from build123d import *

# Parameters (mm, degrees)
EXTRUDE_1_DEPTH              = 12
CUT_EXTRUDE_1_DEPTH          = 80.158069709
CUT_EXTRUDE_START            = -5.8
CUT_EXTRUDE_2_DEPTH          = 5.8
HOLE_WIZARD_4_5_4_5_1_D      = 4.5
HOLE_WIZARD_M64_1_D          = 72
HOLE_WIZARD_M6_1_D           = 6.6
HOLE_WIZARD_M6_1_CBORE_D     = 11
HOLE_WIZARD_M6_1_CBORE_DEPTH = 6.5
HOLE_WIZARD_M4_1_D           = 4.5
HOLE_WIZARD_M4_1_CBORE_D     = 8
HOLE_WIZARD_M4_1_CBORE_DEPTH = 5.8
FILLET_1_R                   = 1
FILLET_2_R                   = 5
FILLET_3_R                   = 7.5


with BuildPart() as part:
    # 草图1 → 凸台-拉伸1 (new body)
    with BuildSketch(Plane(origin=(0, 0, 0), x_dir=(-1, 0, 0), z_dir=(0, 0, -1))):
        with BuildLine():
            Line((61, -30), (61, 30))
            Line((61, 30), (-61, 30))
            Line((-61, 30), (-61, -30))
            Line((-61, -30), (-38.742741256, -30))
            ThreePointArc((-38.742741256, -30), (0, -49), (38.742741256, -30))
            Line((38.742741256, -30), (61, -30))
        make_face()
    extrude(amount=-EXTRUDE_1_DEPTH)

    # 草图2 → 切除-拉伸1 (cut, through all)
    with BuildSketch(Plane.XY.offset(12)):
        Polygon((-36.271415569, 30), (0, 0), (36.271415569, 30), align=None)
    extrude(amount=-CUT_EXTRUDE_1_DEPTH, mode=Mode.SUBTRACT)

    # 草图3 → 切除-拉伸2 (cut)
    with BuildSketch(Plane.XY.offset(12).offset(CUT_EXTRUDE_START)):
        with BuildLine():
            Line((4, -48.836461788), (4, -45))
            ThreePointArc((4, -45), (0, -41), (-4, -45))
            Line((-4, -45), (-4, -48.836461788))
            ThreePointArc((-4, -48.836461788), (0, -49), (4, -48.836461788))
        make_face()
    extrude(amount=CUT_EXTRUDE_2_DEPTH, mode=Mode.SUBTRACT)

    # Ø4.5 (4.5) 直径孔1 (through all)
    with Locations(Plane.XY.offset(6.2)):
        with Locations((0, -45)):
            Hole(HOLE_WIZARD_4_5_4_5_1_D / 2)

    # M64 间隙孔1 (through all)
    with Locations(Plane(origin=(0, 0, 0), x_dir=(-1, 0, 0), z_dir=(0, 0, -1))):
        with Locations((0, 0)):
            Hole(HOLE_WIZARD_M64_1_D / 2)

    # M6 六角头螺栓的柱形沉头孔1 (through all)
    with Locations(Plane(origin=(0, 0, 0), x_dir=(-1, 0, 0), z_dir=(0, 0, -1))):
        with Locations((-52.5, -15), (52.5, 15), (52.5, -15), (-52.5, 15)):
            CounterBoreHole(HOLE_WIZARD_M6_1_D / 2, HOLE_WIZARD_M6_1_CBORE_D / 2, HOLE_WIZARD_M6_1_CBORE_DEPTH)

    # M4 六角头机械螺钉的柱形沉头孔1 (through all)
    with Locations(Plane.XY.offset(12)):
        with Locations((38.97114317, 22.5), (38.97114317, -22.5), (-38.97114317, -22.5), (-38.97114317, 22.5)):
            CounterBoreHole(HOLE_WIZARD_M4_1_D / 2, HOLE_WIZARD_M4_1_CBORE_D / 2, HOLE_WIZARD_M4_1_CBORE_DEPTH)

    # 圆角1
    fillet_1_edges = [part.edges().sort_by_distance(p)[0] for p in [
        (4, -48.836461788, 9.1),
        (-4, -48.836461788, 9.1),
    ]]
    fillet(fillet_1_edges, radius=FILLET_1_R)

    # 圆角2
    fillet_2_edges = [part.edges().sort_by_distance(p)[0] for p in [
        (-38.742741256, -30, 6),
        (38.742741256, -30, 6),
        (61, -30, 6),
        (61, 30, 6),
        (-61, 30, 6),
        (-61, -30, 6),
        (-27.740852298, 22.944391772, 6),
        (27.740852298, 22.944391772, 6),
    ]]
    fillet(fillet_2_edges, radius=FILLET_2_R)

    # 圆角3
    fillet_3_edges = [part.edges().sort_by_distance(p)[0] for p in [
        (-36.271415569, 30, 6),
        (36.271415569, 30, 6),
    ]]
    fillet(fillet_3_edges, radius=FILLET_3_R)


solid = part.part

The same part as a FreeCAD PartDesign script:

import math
import FreeCAD as App
import Part
import Sketcher
from FreeCAD import Vector


def edges_at(feature, points):
    """Names of the edges that pass closest to the given points."""
    edges = feature.Shape.Edges
    near = lambda p: min(range(len(edges)), key=lambda i: edges[i].distToShape(Part.Vertex(*p))[0])
    return sorted({f"Edge{near(p) + 1}" for p in points})

doc = App.newDocument("Part")
params = doc.addObject("Spreadsheet::Sheet", "Params")
for row, (alias, value) in enumerate([
    ("sketch1_radius", "49 mm"),
    ("sketch1_width", "122 mm"),
    ("sketch1_height", "60 mm"),
    ("pad1_length", "12 mm"),
    ("sketch3_radius", "4 mm"),
    ("sketch3_radius2", "49 mm"),
    ("pocket2_length", "5.8 mm"),
    ("sketch4_diameter", "4.5 mm"),
    ("hole_diameter", "4.5 mm"),
    ("sketch5_diameter", "72 mm"),
    ("hole2_diameter", "72 mm"),
    ("sketch6_diameter", "6.6 mm"),
    ("hole3_diameter", "6.6 mm"),
    ("hole3_cbore_diameter", "11 mm"),
    ("hole3_cbore_depth", "6.5 mm"),
    ("sketch7_diameter", "4.5 mm"),
    ("hole4_diameter", "4.5 mm"),
    ("hole4_cbore_diameter", "8 mm"),
    ("hole4_cbore_depth", "5.8 mm"),
    ("fillet_radius", "1 mm"),
    ("fillet2_radius", "5 mm"),
    ("fillet3_radius", "7.5 mm"),
], start=1):
    params.set(f"A{row}", alias)
    params.set(f"B{row}", "=" + value)
    params.setAlias(f"B{row}", alias)

body = doc.addObject("PartDesign::Body", "Body")

# Sketch on XY plane
sketch1 = body.newObject("Sketcher::SketchObject", "Sketch")
sketch1.AttachmentSupport = (doc.getObject("XY_Plane"), [""])
sketch1.MapMode = "FlatFace"
sketch1.addGeometry([
    Part.LineSegment(Vector(-61, -30, 0), Vector(-61, 30, 0)),  # 0
    Part.LineSegment(Vector(-61, 30, 0), Vector(61, 30, 0)),  # 1
    Part.LineSegment(Vector(61, 30, 0), Vector(61, -30, 0)),  # 2
    Part.LineSegment(Vector(61, -30, 0), Vector(38.742741, -30, 0)),  # 3
    Part.ArcOfCircle(Part.Circle(Vector(0, 0, 0), Vector(0, 0, 1), 49), math.radians(-142.247999), math.radians(-37.752001)),  # 4
    Part.LineSegment(Vector(-38.742741, -30, 0), Vector(-61, -30, 0)),  # 5
], False)
sketch1.addConstraint([
    Sketcher.Constraint("Coincident", 0, 2, 1, 1),
    Sketcher.Constraint("Coincident", 1, 2, 2, 1),
    Sketcher.Constraint("Coincident", 2, 2, 3, 1),
    Sketcher.Constraint("Coincident", 3, 2, 4, 2),
    Sketcher.Constraint("Coincident", 4, 1, 5, 1),
    Sketcher.Constraint("Coincident", 5, 2, 0, 1),
    Sketcher.Constraint("Vertical", 0),
    Sketcher.Constraint("Horizontal", 1),
    Sketcher.Constraint("Vertical", 2),
    Sketcher.Constraint("Horizontal", 3),
    Sketcher.Constraint("Horizontal", 5),
    Sketcher.Constraint("Coincident", 4, 3, -1, 1),
    Sketcher.Constraint("Symmetric", 0, 2, 2, 2, -1, 1),
    Sketcher.Constraint("Horizontal", 3, 2, 4, 1),
    Sketcher.Constraint("Radius", 4, 49.0),
    Sketcher.Constraint("DistanceX", 1, 1, 1, 2, 122.0),
    Sketcher.Constraint("DistanceY", 0, 1, 0, 2, 60.0),
])
sketch1.setExpression("Constraints[14]", "Params.sketch1_radius")
sketch1.setExpression("Constraints[15]", "Params.sketch1_width")
sketch1.setExpression("Constraints[16]", "Params.sketch1_height")
pad1 = body.newObject("PartDesign::Pad", "Pad")
pad1.Profile = sketch1
pad1.setExpression("Length", "Params.pad1_length")

# Sketch on XY plane
sketch2 = body.newObject("Sketcher::SketchObject", "Sketch001")
sketch2.AttachmentSupport = (doc.getObject("XY_Plane"), [""])
sketch2.MapMode = "FlatFace"
sketch2.AttachmentOffset = App.Placement(Vector(0, 0, 12), App.Rotation())
sketch2.addGeometry([
    Part.LineSegment(Vector(-36.271416, 30, 0), Vector(0, 0, 0)),
    Part.LineSegment(Vector(0, 0, 0), Vector(36.271416, 30, 0)),
    Part.LineSegment(Vector(36.271416, 30, 0), Vector(-36.271416, 30, 0)),
], False)
sketch2.addConstraint([
    Sketcher.Constraint("Coincident", 0, 2, 1, 1),
    Sketcher.Constraint("Coincident", 1, 2, 2, 1),
    Sketcher.Constraint("Coincident", 2, 2, 0, 1),
    Sketcher.Constraint("Horizontal", 2),
    Sketcher.Constraint("Coincident", 0, 2, -1, 1),
    Sketcher.Constraint("Equal", 0, 1),
    Sketcher.Constraint("DistanceY", -1, 1, 1, 2, 30.0),
    Sketcher.Constraint("DistanceX", 2, 2, 2, 1, 72.542831),
])
pocket1 = body.newObject("PartDesign::Pocket", "Pocket")
pocket1.Profile = sketch2
pocket1.Type = "ThroughAll"

# Sketch on XY plane
sketch3 = body.newObject("Sketcher::SketchObject", "Sketch002")
sketch3.AttachmentSupport = (doc.getObject("XY_Plane"), [""])
sketch3.MapMode = "FlatFace"
sketch3.AttachmentOffset = App.Placement(Vector(0, 0, 6.2), App.Rotation())
sketch3.addGeometry([
    Part.LineSegment(Vector(4, -48.836462, 0), Vector(4, -45, 0)),
    Part.ArcOfCircle(Part.Circle(Vector(0, -45, 0), Vector(0, 0, 1), 4), math.radians(0), math.radians(180)),
    Part.LineSegment(Vector(-4, -45, 0), Vector(-4, -48.836462, 0)),
    Part.ArcOfCircle(Part.Circle(Vector(0, 0, 0), Vector(0, 0, 1), 49), math.radians(-94.682417), math.radians(-85.317583)),
], False)
sketch3.addConstraint([
    Sketcher.Constraint("Tangent", 0, 2, 1, 1),
    Sketcher.Constraint("Tangent", 1, 2, 2, 1),
    Sketcher.Constraint("Coincident", 2, 2, 3, 1),
    Sketcher.Constraint("Coincident", 3, 2, 0, 1),
    Sketcher.Constraint("Vertical", 0),
    Sketcher.Constraint("Vertical", 2),
    Sketcher.Constraint("Coincident", 3, 3, -1, 1),
    Sketcher.Constraint("PointOnObject", 1, 3, -2),
    Sketcher.Constraint("Radius", 1, 4.0),
    Sketcher.Constraint("Radius", 3, 49.0),
    Sketcher.Constraint("DistanceY", 1, 3, -1, 1, 45.0),
])
sketch3.setExpression("Constraints[8]", "Params.sketch3_radius")
sketch3.setExpression("Constraints[9]", "Params.sketch3_radius2")
pocket2 = body.newObject("PartDesign::Pocket", "Pocket001")
pocket2.Profile = sketch3
pocket2.setExpression("Length", "Params.pocket2_length")
pocket2.Reversed = True

# Sketch on XY plane
sketch4 = body.newObject("Sketcher::SketchObject", "Sketch003")
sketch4.AttachmentSupport = (doc.getObject("XY_Plane"), [""])
sketch4.MapMode = "FlatFace"
sketch4.AttachmentOffset = App.Placement(Vector(0, 0, 6.2), App.Rotation())
sketch4.addGeometry(Part.Circle(Vector(0, -45, 0), Vector(0, 0, 1), 2.25), False)
sketch4.addConstraint([
    Sketcher.Constraint("PointOnObject", 0, 3, -2),
    Sketcher.Constraint("Diameter", 0, 4.5),
    Sketcher.Constraint("DistanceY", 0, 3, -1, 1, 45.0),
])
sketch4.setExpression("Constraints[1]", "Params.sketch4_diameter")
doc.recompute()
hole = body.newObject("PartDesign::Hole", "Hole")
hole.Profile = sketch4
hole.ThreadType = "None"
hole.setExpression("Diameter", "Params.hole_diameter")
hole.DepthType = "ThroughAll"

# Sketch on XY plane
sketch5 = body.newObject("Sketcher::SketchObject", "Sketch004")
sketch5.AttachmentSupport = (doc.getObject("XY_Plane"), [""])
sketch5.MapMode = "FlatFace"
sketch5.addGeometry(Part.Circle(Vector(0, 0, 0), Vector(0, 0, 1), 36), False)
sketch5.addConstraint([
    Sketcher.Constraint("Coincident", 0, 3, -1, 1),
    Sketcher.Constraint("Diameter", 0, 72.0),
])
sketch5.setExpression("Constraints[1]", "Params.sketch5_diameter")
doc.recompute()
hole2 = body.newObject("PartDesign::Hole", "Hole001")
hole2.Profile = sketch5
hole2.ThreadType = "None"
hole2.setExpression("Diameter", "Params.hole2_diameter")
hole2.DepthType = "ThroughAll"
hole2.Reversed = True

# Sketch on XY plane
sketch6 = body.newObject("Sketcher::SketchObject", "Sketch005")
sketch6.AttachmentSupport = (doc.getObject("XY_Plane"), [""])
sketch6.MapMode = "FlatFace"
sketch6.addGeometry([
    Part.Circle(Vector(52.5, -15, 0), Vector(0, 0, 1), 3.3),
    Part.Circle(Vector(-52.5, 15, 0), Vector(0, 0, 1), 3.3),
    Part.Circle(Vector(-52.5, -15, 0), Vector(0, 0, 1), 3.3),
    Part.Circle(Vector(52.5, 15, 0), Vector(0, 0, 1), 3.3),
], False)
sketch6.addConstraint([
    Sketcher.Constraint("Equal", 0, 1),
    Sketcher.Constraint("Equal", 1, 2),
    Sketcher.Constraint("Equal", 2, 3),
    Sketcher.Constraint("Symmetric", 0, 3, 1, 3, -1, 1),
    Sketcher.Constraint("Symmetric", 2, 3, 3, 3, -1, 1),
    Sketcher.Constraint("Symmetric", 0, 3, 2, 3, -2),
    Sketcher.Constraint("Diameter", 0, 6.6),
    Sketcher.Constraint("DistanceY", 0, 3, -1, 1, 15.0),
    Sketcher.Constraint("DistanceX", 1, 3, 0, 3, 105.0),
])
sketch6.setExpression("Constraints[6]", "Params.sketch6_diameter")
doc.recompute()
hole3 = body.newObject("PartDesign::Hole", "Hole002")
hole3.Profile = sketch6
hole3.ThreadType = "None"
hole3.setExpression("Diameter", "Params.hole3_diameter")
hole3.DepthType = "ThroughAll"
hole3.HoleCutType = "Counterbore"
hole3.setExpression("HoleCutDiameter", "Params.hole3_cbore_diameter")
hole3.setExpression("HoleCutDepth", "Params.hole3_cbore_depth")
hole3.Reversed = True

# Sketch on XY plane
sketch7 = body.newObject("Sketcher::SketchObject", "Sketch006")
sketch7.AttachmentSupport = (doc.getObject("XY_Plane"), [""])
sketch7.MapMode = "FlatFace"
sketch7.AttachmentOffset = App.Placement(Vector(0, 0, 12), App.Rotation())
sketch7.addGeometry([
    Part.Circle(Vector(38.971143, 22.5, 0), Vector(0, 0, 1), 2.25),
    Part.Circle(Vector(38.971143, -22.5, 0), Vector(0, 0, 1), 2.25),
    Part.Circle(Vector(-38.971143, -22.5, 0), Vector(0, 0, 1), 2.25),
    Part.Circle(Vector(-38.971143, 22.5, 0), Vector(0, 0, 1), 2.25),
], False)
sketch7.addConstraint([
    Sketcher.Constraint("Equal", 0, 1),
    Sketcher.Constraint("Equal", 1, 2),
    Sketcher.Constraint("Equal", 2, 3),
    Sketcher.Constraint("Symmetric", 0, 3, 2, 3, -1, 1),
    Sketcher.Constraint("Symmetric", 1, 3, 3, 3, -1, 1),
    Sketcher.Constraint("Symmetric", 1, 3, 2, 3, -2),
    Sketcher.Constraint("Diameter", 0, 4.5),
    Sketcher.Constraint("DistanceY", 1, 3, 0, 3, 45.0),
    Sketcher.Constraint("DistanceX", -1, 1, 0, 3, 38.971143),
])
sketch7.setExpression("Constraints[6]", "Params.sketch7_diameter")
doc.recompute()
hole4 = body.newObject("PartDesign::Hole", "Hole003")
hole4.Profile = sketch7
hole4.ThreadType = "None"
hole4.setExpression("Diameter", "Params.hole4_diameter")
hole4.DepthType = "ThroughAll"
hole4.HoleCutType = "Counterbore"
hole4.setExpression("HoleCutDiameter", "Params.hole4_cbore_diameter")
hole4.setExpression("HoleCutDepth", "Params.hole4_cbore_depth")
doc.recompute()

fillet = body.newObject("PartDesign::Fillet", "Fillet")
fillet.Base = (hole4, edges_at(hole4, [(4, -48.836, 9.1), (-4, -48.836, 9.1)]))
fillet.setExpression("Radius", "Params.fillet_radius")
doc.recompute()

fillet2 = body.newObject("PartDesign::Fillet", "Fillet001")
fillet2.Base = (fillet, edges_at(fillet, [
    (-38.743, -30, 6),
    (38.743, -30, 6),
    (61, -30, 6),
    (61, 30, 6),
    (-61, 30, 6),
    (-61, -30, 6),
    (-27.741, 22.944, 6),
    (27.741, 22.944, 6),
]))
fillet2.setExpression("Radius", "Params.fillet2_radius")
doc.recompute()

fillet3 = body.newObject("PartDesign::Fillet", "Fillet002")
fillet3.Base = (fillet2, edges_at(fillet2, [(-36.271, 30, 6), (36.271, 30, 6)]))
fillet3.setExpression("Radius", "Params.fillet3_radius")

doc.recompute()
